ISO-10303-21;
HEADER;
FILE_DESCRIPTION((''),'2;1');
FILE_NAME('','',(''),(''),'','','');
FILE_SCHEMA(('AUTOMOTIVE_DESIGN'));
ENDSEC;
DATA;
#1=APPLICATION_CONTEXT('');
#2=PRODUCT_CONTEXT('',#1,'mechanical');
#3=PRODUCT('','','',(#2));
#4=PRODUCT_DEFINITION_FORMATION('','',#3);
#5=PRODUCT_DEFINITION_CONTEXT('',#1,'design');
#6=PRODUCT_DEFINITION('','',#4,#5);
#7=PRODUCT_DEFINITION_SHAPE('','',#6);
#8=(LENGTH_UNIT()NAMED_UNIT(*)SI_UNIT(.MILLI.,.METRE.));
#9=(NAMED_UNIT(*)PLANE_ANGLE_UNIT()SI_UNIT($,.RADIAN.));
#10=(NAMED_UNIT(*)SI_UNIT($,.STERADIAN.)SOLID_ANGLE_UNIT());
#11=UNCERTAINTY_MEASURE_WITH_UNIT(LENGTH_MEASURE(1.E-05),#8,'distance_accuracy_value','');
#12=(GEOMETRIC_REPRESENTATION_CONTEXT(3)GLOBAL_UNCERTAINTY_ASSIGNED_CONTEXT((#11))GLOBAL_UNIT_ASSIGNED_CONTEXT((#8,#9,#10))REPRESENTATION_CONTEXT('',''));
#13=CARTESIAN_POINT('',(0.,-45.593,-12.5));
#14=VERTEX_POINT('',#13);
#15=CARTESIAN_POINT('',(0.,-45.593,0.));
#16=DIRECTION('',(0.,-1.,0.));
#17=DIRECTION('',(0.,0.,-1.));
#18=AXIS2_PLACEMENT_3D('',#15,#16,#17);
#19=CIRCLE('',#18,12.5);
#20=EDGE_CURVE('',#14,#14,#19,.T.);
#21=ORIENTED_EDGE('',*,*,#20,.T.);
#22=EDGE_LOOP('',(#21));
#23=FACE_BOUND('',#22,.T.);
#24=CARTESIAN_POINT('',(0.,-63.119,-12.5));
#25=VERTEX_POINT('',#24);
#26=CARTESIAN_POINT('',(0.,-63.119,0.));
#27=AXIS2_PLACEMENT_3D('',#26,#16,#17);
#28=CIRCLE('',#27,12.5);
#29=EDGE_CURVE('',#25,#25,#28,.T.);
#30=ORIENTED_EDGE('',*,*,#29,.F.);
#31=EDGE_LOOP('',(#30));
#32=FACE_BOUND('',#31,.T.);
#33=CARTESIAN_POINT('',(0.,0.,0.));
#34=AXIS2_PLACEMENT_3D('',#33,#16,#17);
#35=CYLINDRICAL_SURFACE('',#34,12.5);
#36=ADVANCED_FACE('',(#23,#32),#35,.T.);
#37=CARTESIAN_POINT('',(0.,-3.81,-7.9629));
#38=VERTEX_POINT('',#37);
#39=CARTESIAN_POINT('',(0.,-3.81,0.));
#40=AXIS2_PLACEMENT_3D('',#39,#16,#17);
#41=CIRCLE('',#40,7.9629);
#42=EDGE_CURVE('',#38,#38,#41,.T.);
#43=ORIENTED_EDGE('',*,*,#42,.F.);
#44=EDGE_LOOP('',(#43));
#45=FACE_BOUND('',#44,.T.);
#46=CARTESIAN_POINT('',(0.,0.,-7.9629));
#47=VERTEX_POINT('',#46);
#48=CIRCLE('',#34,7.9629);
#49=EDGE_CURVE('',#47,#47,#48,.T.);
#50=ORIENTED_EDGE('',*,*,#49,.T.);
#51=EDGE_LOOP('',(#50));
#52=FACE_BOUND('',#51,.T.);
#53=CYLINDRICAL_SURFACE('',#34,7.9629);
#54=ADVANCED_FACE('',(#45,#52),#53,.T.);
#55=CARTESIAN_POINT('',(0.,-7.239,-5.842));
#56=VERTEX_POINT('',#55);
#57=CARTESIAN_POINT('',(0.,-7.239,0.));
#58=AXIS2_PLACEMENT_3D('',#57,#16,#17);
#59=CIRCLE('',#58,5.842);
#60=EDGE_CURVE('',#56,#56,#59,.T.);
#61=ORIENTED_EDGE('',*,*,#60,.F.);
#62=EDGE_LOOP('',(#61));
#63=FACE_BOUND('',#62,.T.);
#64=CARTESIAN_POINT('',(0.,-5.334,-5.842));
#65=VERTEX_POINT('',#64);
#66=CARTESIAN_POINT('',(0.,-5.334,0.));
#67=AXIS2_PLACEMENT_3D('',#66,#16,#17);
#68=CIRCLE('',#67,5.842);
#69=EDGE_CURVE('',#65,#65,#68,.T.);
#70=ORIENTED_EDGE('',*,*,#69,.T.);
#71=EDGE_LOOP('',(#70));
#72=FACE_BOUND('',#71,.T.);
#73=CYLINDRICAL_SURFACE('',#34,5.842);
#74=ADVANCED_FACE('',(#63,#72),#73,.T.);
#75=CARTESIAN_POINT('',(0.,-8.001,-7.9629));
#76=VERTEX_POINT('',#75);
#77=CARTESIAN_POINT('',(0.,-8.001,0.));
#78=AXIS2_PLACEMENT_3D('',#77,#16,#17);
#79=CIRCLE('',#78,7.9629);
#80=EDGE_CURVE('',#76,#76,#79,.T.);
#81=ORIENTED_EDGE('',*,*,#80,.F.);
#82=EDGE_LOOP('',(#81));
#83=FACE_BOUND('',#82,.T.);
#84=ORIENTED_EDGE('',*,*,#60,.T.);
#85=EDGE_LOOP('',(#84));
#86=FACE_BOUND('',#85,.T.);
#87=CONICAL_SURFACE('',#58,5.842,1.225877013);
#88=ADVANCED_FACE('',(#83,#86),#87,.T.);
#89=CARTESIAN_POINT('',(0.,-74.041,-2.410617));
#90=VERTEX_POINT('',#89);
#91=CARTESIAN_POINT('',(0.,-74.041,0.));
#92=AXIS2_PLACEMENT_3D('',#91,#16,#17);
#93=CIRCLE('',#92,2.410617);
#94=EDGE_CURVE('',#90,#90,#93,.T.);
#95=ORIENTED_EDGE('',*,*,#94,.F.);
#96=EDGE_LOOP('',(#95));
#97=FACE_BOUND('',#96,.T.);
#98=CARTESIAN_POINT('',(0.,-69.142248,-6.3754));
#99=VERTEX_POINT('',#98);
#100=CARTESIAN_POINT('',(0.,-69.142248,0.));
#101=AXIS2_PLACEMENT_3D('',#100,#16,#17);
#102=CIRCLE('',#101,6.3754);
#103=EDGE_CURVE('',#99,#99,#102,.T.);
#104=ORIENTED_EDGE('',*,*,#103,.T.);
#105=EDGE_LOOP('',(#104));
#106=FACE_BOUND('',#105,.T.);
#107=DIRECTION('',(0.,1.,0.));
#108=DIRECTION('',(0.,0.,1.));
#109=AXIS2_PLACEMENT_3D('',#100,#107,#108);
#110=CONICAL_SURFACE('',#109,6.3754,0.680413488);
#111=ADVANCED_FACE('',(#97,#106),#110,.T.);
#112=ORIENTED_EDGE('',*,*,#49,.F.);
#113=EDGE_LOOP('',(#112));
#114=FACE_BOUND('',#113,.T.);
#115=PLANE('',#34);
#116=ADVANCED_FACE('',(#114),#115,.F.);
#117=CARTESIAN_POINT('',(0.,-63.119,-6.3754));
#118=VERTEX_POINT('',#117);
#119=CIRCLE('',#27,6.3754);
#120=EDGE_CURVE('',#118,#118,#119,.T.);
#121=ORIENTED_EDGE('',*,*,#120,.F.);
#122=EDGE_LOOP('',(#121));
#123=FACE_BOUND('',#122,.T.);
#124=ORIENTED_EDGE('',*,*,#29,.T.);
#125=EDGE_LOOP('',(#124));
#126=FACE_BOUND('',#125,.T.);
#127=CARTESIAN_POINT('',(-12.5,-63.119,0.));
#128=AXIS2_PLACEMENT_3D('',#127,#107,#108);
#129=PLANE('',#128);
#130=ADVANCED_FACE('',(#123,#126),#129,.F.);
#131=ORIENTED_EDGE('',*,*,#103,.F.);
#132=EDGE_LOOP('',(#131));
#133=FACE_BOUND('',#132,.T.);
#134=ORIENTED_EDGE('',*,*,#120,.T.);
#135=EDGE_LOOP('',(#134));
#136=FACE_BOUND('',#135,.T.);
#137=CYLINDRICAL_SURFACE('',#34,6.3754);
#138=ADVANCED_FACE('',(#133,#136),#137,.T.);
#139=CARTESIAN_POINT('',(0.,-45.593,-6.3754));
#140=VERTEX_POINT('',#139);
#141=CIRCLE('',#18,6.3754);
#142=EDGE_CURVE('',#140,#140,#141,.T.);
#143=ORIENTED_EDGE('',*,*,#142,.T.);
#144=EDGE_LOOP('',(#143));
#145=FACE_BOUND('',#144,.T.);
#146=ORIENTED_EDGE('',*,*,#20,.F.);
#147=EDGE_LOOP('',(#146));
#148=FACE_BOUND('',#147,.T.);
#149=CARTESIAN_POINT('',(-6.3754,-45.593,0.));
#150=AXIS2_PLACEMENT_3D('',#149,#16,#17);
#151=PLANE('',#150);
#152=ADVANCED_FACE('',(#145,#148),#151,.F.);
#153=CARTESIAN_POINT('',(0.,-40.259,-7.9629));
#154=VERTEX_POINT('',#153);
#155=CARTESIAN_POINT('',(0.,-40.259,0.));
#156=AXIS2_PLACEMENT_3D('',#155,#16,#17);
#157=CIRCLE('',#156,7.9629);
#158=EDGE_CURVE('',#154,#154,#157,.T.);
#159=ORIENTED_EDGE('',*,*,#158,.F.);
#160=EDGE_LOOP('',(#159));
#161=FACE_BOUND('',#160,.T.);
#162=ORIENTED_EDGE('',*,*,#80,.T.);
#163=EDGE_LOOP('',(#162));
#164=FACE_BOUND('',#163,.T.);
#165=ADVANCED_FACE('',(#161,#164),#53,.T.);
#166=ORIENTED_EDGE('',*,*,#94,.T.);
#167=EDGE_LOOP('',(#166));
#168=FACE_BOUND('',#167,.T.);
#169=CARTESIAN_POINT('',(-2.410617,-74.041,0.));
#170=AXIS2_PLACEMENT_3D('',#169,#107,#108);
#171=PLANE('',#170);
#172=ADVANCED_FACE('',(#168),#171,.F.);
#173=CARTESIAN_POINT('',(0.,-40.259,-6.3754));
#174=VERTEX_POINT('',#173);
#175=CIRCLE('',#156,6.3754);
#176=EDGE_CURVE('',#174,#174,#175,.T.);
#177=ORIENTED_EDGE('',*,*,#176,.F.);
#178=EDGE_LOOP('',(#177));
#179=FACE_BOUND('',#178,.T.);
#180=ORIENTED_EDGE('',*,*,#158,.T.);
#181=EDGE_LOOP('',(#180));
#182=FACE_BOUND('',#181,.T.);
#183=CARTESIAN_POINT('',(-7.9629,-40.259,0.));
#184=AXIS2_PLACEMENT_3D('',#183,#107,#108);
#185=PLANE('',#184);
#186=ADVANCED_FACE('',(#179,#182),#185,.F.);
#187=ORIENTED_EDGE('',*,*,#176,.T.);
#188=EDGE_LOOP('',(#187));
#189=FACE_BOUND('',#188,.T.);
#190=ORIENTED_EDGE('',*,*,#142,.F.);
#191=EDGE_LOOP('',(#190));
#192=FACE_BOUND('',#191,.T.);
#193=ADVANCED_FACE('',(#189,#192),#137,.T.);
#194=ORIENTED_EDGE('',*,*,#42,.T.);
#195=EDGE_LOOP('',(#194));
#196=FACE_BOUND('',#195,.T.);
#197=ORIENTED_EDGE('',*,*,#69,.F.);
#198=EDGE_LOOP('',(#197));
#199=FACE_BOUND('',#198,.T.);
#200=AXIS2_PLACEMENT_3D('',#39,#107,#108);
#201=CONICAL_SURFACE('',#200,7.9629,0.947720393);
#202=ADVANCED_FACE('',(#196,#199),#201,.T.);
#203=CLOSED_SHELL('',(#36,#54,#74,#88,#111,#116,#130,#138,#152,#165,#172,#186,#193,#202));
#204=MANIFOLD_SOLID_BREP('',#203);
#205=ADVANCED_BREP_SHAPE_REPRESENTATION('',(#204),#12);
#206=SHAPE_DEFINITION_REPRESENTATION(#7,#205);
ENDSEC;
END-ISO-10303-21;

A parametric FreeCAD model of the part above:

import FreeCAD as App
import Part
import Sketcher
from FreeCAD import Vector
Q = App.Units.Quantity


def add_polygon(sketch, points):
    """Adds a closed chain of lines whose ends are joined by coincident constraints."""
    first, n = sketch.GeometryCount, len(points)
    for a, b in zip(points, points[1:] + points[:1]):
        sketch.addGeometry(Part.LineSegment(App.Vector(*a, 0), App.Vector(*b, 0)), False)
    for i in range(n):
        sketch.addConstraint(Sketcher.Constraint("Coincident", first + i, 2, first + (i + 1) % n, 1))

doc = App.newDocument("Part")
params = doc.addObject("Spreadsheet::Sheet", "Params")
for row, (alias, value) in enumerate([
    ("sketch1_height", "0.15 in"),
    ("sketch1_height2", "1.27 in"),
    ("sketch1_height3", "0.21 in"),
    ("sketch1_height4", "0.69 in"),
    ("sketch1_width", "0.0625 in"),
    ("revolution_angle", "360 deg"),
], start=1):
    params.set(f"A{row}", alias)
    params.set(f"B{row}", "=" + value)
    params.setAlias(f"B{row}", alias)

body = doc.addObject("PartDesign::Body", "Body")

sketch1 = doc.addObject("Sketcher::SketchObject", "Sketch")
body.addObject(sketch1)
sketch1.AttachmentSupport = (doc.XY_Plane, [""])
sketch1.MapMode = "FlatFace"
add_polygon(sketch1, [(0, 0), (-8, 0), (-8, -3.8), (-5.8, -5.3), (-5.8, -7.2), (-8, -8), (-8, -40.3), (-6.4, -40.3), (-6.4, -45.6), (-12.5, -45.6), (-12.5, -63.1), (-6.4, -63.1), (-6.4, -69.1), (-2.4, -74), (0, -74)])
sketch1.addConstraint([
    Sketcher.Constraint("Horizontal", 0),
    Sketcher.Constraint("Vertical", 1),
    Sketcher.Constraint("Vertical", 3),
    Sketcher.Constraint("Vertical", 5),
    Sketcher.Constraint("Horizontal", 6),
    Sketcher.Constraint("Vertical", 7),
    Sketcher.Constraint("Horizontal", 8),
    Sketcher.Constraint("Vertical", 9),
    Sketcher.Constraint("Horizontal", 10),
    Sketcher.Constraint("Vertical", 11),
    Sketcher.Constraint("Horizontal", 13),
    Sketcher.Constraint("Vertical", 14),
    Sketcher.Constraint("Coincident", 14, 2, -1, 1),
    Sketcher.Constraint("Vertical", 1, 2, 4, 2),
    Sketcher.Constraint("Vertical", 7, 2, 10, 2),
    Sketcher.Constraint("DistanceY", 1, 2, 1, 1, Q("0.15 in")),
    Sketcher.Constraint("DistanceY", 5, 2, 5, 1, Q("1.27 in")),
    Sketcher.Constraint("DistanceY", 7, 2, 7, 1, Q("0.21 in")),
    Sketcher.Constraint("DistanceY", 9, 2, 9, 1, Q("0.69 in")),
    Sketcher.Constraint("DistanceY", 5, 2, 3, 2, Q("1.3 in")),
    Sketcher.Constraint("DistanceX", 6, 1, 6, 2, Q("0.0625 in")),
    Sketcher.Constraint("DistanceY", 3, 2, 3, 1, Q("0.075 in")),
    Sketcher.Constraint("DistanceY", 14, 1, 14, 2, Q("2.915 in")),
    Sketcher.Constraint("DistanceX", 2, 2, -1, 1, Q("0.23 in")),
    Sketcher.Constraint("DistanceY", 2, 2, -1, 1, Q("0.21 in")),
    Sketcher.Constraint("DistanceX", 0, 2, 0, 1, Q("0.3135 in")),
    Sketcher.Constraint("DistanceX", 8, 2, 8, 1, 6.1246),
    Sketcher.Constraint("DistanceX", 13, 1, 13, 2, 2.410617),
    Sketcher.Constraint("DistanceY", 11, 2, 11, 1, 6.023248),
])
sketch1.setExpression("Constraints[30]", "Params.sketch1_height")
sketch1.setExpression("Constraints[31]", "Params.sketch1_height2")
sketch1.setExpression("Constraints[32]", "Params.sketch1_height3")
sketch1.setExpression("Constraints[33]", "Params.sketch1_height4")
sketch1.setExpression("Constraints[35]", "Params.sketch1_width")
revolution = doc.addObject("PartDesign::Revolution", "Revolution")
body.addObject(revolution)
revolution.Profile = sketch1
revolution.ReferenceAxis = (sketch1, ["V_Axis"])
revolution.setExpression("Angle", "Params.revolution_angle")

doc.recompute()
